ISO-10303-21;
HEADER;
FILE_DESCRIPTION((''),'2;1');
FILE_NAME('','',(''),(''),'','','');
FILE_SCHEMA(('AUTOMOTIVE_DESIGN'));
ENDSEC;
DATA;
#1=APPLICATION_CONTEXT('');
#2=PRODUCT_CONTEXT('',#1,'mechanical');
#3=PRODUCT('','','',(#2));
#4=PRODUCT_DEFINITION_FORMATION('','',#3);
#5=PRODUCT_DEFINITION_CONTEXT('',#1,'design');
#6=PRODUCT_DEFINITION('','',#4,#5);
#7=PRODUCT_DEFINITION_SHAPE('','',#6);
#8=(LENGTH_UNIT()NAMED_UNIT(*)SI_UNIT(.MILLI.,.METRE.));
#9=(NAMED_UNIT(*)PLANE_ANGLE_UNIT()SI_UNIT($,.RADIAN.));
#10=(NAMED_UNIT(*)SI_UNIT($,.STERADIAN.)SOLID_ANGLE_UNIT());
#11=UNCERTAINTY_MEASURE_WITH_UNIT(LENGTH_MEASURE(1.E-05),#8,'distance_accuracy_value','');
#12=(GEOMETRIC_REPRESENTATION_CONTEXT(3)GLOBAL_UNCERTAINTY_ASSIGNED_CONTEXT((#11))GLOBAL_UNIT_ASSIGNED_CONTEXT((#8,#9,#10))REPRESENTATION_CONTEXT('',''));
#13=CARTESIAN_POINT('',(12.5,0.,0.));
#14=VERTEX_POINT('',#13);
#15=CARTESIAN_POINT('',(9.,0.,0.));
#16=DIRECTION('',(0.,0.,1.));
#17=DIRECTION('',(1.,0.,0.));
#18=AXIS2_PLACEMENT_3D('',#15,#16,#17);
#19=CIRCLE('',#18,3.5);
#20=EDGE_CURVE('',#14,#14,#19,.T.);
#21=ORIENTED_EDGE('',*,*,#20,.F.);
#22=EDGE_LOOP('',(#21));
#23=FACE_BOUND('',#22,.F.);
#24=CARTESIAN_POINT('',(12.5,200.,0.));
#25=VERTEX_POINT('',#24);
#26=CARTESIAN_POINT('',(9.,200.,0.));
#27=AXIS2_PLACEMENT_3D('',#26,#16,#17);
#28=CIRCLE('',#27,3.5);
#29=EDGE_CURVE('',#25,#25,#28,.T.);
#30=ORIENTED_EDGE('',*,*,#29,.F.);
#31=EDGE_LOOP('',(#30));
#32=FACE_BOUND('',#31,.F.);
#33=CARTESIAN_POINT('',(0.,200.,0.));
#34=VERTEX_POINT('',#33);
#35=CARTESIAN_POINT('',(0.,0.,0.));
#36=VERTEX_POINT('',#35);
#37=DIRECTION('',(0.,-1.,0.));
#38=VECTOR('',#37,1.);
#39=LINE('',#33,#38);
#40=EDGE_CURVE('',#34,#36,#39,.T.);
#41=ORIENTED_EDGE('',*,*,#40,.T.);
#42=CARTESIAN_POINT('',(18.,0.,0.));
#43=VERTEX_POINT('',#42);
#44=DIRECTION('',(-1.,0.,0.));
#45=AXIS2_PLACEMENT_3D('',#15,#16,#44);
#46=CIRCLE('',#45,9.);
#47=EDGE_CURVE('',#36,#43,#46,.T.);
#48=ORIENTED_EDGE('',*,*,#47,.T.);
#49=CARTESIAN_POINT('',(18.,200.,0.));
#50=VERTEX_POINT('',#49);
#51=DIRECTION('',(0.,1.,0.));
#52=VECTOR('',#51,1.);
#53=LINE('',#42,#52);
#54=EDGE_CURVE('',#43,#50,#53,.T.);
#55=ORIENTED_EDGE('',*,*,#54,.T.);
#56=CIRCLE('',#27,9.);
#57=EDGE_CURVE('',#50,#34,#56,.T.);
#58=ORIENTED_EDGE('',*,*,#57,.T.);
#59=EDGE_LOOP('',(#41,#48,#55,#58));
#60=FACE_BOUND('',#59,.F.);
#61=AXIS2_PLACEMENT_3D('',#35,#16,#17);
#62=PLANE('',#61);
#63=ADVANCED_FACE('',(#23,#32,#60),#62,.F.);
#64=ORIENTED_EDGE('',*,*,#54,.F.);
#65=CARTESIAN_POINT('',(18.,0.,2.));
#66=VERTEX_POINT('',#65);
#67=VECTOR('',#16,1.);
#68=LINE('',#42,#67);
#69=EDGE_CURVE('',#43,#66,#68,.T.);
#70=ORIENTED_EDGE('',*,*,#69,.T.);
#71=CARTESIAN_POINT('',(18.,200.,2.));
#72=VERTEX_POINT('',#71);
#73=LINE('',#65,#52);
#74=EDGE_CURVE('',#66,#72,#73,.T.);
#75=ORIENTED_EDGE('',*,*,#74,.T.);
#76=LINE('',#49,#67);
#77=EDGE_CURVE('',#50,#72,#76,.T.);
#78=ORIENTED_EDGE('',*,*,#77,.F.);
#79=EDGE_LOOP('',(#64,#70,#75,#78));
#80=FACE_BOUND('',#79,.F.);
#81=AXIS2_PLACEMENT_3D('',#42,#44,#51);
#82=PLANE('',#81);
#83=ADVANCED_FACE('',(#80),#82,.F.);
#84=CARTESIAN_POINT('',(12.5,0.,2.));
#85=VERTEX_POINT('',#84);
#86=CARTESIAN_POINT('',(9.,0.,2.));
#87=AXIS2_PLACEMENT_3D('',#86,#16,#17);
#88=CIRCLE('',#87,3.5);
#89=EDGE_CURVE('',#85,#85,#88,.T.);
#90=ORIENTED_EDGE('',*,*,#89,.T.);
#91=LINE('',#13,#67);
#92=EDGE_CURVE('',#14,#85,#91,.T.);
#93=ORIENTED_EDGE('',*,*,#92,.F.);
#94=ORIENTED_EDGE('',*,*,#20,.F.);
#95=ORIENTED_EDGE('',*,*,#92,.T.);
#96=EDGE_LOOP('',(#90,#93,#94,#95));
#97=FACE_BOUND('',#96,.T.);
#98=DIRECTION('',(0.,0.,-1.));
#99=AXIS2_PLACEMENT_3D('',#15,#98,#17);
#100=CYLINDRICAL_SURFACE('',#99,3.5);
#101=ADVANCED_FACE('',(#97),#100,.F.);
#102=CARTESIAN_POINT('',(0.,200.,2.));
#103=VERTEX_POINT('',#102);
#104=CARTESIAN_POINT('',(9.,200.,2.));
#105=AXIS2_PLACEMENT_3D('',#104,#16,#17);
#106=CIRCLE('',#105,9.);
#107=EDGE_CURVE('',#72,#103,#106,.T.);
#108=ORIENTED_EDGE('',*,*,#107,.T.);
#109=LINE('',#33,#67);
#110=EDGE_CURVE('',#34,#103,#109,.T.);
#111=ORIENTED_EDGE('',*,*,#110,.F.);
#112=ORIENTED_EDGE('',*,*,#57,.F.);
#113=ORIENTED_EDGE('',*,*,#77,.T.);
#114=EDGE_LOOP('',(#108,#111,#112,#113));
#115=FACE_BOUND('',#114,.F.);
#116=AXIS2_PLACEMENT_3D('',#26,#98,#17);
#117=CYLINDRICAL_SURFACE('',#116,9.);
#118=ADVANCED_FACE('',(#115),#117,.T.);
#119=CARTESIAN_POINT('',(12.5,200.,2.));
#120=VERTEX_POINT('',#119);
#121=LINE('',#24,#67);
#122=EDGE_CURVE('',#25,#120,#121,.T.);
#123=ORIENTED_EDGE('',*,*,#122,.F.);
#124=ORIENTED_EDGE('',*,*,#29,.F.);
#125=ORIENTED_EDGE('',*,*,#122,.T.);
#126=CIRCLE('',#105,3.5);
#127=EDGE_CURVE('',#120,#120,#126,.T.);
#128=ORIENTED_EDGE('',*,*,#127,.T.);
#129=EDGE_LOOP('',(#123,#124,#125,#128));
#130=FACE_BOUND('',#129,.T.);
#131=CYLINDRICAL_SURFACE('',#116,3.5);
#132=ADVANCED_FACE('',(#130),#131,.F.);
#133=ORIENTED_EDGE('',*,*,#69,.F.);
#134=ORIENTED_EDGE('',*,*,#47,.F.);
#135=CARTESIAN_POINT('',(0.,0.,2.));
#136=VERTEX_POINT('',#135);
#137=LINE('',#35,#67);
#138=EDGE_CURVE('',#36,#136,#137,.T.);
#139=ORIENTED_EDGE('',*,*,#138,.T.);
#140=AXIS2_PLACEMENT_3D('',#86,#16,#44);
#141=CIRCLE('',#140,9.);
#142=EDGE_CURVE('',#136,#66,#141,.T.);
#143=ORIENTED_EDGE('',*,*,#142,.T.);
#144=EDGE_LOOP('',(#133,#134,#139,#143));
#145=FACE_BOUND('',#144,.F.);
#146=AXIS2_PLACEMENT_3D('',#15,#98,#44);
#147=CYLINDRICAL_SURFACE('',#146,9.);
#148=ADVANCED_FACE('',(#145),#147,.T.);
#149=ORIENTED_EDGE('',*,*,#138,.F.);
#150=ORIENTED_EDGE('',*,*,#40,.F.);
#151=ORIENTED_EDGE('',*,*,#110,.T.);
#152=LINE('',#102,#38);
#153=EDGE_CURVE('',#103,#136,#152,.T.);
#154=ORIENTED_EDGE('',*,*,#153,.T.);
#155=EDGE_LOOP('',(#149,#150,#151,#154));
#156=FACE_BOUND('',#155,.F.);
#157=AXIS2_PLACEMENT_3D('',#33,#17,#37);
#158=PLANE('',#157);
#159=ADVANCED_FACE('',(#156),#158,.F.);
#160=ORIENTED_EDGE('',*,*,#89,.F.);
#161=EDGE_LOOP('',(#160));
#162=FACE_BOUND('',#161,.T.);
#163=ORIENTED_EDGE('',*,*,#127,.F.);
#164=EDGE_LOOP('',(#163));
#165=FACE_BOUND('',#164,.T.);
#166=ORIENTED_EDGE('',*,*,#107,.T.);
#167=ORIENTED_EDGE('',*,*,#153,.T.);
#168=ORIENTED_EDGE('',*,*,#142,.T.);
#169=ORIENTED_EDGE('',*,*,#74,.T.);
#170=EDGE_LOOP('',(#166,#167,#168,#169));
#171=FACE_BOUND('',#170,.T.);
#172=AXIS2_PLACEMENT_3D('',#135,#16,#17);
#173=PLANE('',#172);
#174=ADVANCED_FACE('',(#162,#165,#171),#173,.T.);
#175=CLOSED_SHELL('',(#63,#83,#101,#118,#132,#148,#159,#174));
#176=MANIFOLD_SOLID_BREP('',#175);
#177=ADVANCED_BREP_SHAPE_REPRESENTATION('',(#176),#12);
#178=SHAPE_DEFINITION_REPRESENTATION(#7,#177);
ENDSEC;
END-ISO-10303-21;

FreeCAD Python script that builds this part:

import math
import FreeCAD as App
import Part
import Sketcher
from FreeCAD import Vector
Q = App.Units.Quantity

doc = App.newDocument("Part")
params = doc.addObject("Spreadsheet::Sheet", "Params")
for row, (alias, value) in enumerate([
    ("sketch1_diameter", "7 mm"),
    ("sketch1_radius", "9 mm"),
    ("sketch1_height", "200 mm"),
    ("pad1_length", "2 mm"),
], start=1):
    params.set(f"A{row}", alias)
    params.set(f"B{row}", "=" + value)
    params.setAlias(f"B{row}", alias)

body = doc.addObject("PartDesign::Body", "Body")

sketch1 = doc.addObject("Sketcher::SketchObject", "Sketch")
body.addObject(sketch1)
sketch1.AttachmentSupport = (doc.XY_Plane, [""])
sketch1.MapMode = "FlatFace"
sketch1.addGeometry(Part.ArcOfCircle(Part.Circle(Vector(9, 0, 0), Vector(0, 0, 1), 9), math.radians(180), math.radians(360)), False)
sketch1.addGeometry(Part.LineSegment(Vector(18, 0, 0), Vector(18, 200, 0)), False)
sketch1.addGeometry(Part.ArcOfCircle(Part.Circle(Vector(9, 200, 0), Vector(0, 0, 1), 9), math.radians(0), math.radians(180)), False)
sketch1.addGeometry(Part.LineSegment(Vector(0, 200, 0), Vector(0, 0, 0)), False)
sketch1.addGeometry(Part.Circle(Vector(9, 0, 0), Vector(0, 0, 1), 3.5), False)
sketch1.addGeometry(Part.Circle(Vector(9, 200, 0), Vector(0, 0, 1), 3.5), False)
sketch1.addConstraint(Sketcher.Constraint("Tangent", 0, 2, 1, 1))
sketch1.addConstraint(Sketcher.Constraint("Tangent", 1, 2, 2, 1))
sketch1.addConstraint(Sketcher.Constraint("Tangent", 2, 2, 3, 1))
sketch1.addConstraint(Sketcher.Constraint("Tangent", 3, 2, 0, 1))
sketch1.addConstraint(Sketcher.Constraint("Vertical", 1))
sketch1.addConstraint(Sketcher.Constraint("Vertical", 3))
sketch1.addConstraint(Sketcher.Constraint("Coincident", 3, 2, -1, 1))
sketch1.addConstraint(Sketcher.Constraint("Coincident", 4, 3, 0, 3))
sketch1.addConstraint(Sketcher.Constraint("Coincident", 5, 3, 2, 3))
sketch1.addConstraint(Sketcher.Constraint("Equal", 4, 5))
sketch1.addConstraint(Sketcher.Constraint("Diameter", 4, Q("7 mm")))
sketch1.addConstraint(Sketcher.Constraint("Radius", 0, Q("9 mm")))
sketch1.addConstraint(Sketcher.Constraint("DistanceY", 1, 1, 1, 2, Q("200 mm")))
sketch1.setExpression("Constraints[10]", "Params.sketch1_diameter")
sketch1.setExpression("Constraints[11]", "Params.sketch1_radius")
sketch1.setExpression("Constraints[12]", "Params.sketch1_height")
pad1 = doc.addObject("PartDesign::Pad", "Pad")
body.addObject(pad1)
pad1.Profile = sketch1
pad1.setExpression("Length", "Params.pad1_length")

doc.recompute()
